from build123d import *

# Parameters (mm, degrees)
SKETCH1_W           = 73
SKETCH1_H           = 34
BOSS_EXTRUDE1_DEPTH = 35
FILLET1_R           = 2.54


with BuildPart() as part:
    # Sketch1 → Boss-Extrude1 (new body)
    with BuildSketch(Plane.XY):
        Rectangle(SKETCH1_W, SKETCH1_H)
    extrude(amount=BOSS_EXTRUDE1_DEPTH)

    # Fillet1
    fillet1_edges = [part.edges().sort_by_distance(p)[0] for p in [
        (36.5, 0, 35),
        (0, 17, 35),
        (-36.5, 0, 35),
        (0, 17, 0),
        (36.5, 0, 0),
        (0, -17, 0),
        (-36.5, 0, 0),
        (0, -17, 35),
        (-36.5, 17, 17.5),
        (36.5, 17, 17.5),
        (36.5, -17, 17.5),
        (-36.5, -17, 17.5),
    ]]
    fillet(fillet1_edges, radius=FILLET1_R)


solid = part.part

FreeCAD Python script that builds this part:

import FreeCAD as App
import Part
import Sketcher
from FreeCAD import Vector

doc = App.newDocument("Part")
body = doc.addObject("PartDesign::Body", "Body")

sketch1 = body.newObject("Sketcher::SketchObject", "Sketch")
sketch1.AttachmentSupport = (doc.getObject("XY_Plane"), [""])
sketch1.MapMode = "FlatFace"
sketch1.addGeometry([
    Part.LineSegment(Vector(-36, 17, 0), Vector(-36, -17, 0)),
    Part.LineSegment(Vector(-36, -17, 0), Vector(36, -17, 0)),
    Part.LineSegment(Vector(36, -17, 0), Vector(36, 17, 0)),
    Part.LineSegment(Vector(36, 17, 0), Vector(-36, 17, 0)),
], False)
sketch1.addConstraint([
    Sketcher.Constraint("Coincident", 0, 2, 1, 1),
    Sketcher.Constraint("Coincident", 1, 2, 2, 1),
    Sketcher.Constraint("Coincident", 2, 2, 3, 1),
    Sketcher.Constraint("Coincident", 3, 2, 0, 1),
    Sketcher.Constraint("Vertical", 0),
    Sketcher.Constraint("Horizontal", 1),
    Sketcher.Constraint("Vertical", 2),
    Sketcher.Constraint("Horizontal", 3),
    Sketcher.Constraint("Symmetric", 0, 2, 2, 2, -1, 1),
    Sketcher.Constraint("DistanceX", 1, 1, 1, 2, 73.0),
    Sketcher.Constraint("DistanceY", 0, 2, 0, 1, 34.0),
])
pad1 = body.newObject("PartDesign::Pad", "Pad")
pad1.Profile = sketch1
pad1.Length = 35
doc.recompute()

fillet = body.newObject("PartDesign::Fillet", "Fillet")
fillet.Base = (pad1, ["Edge1"])
fillet.UseAllEdges = True
fillet.Radius = 2.54

doc.recompute()
